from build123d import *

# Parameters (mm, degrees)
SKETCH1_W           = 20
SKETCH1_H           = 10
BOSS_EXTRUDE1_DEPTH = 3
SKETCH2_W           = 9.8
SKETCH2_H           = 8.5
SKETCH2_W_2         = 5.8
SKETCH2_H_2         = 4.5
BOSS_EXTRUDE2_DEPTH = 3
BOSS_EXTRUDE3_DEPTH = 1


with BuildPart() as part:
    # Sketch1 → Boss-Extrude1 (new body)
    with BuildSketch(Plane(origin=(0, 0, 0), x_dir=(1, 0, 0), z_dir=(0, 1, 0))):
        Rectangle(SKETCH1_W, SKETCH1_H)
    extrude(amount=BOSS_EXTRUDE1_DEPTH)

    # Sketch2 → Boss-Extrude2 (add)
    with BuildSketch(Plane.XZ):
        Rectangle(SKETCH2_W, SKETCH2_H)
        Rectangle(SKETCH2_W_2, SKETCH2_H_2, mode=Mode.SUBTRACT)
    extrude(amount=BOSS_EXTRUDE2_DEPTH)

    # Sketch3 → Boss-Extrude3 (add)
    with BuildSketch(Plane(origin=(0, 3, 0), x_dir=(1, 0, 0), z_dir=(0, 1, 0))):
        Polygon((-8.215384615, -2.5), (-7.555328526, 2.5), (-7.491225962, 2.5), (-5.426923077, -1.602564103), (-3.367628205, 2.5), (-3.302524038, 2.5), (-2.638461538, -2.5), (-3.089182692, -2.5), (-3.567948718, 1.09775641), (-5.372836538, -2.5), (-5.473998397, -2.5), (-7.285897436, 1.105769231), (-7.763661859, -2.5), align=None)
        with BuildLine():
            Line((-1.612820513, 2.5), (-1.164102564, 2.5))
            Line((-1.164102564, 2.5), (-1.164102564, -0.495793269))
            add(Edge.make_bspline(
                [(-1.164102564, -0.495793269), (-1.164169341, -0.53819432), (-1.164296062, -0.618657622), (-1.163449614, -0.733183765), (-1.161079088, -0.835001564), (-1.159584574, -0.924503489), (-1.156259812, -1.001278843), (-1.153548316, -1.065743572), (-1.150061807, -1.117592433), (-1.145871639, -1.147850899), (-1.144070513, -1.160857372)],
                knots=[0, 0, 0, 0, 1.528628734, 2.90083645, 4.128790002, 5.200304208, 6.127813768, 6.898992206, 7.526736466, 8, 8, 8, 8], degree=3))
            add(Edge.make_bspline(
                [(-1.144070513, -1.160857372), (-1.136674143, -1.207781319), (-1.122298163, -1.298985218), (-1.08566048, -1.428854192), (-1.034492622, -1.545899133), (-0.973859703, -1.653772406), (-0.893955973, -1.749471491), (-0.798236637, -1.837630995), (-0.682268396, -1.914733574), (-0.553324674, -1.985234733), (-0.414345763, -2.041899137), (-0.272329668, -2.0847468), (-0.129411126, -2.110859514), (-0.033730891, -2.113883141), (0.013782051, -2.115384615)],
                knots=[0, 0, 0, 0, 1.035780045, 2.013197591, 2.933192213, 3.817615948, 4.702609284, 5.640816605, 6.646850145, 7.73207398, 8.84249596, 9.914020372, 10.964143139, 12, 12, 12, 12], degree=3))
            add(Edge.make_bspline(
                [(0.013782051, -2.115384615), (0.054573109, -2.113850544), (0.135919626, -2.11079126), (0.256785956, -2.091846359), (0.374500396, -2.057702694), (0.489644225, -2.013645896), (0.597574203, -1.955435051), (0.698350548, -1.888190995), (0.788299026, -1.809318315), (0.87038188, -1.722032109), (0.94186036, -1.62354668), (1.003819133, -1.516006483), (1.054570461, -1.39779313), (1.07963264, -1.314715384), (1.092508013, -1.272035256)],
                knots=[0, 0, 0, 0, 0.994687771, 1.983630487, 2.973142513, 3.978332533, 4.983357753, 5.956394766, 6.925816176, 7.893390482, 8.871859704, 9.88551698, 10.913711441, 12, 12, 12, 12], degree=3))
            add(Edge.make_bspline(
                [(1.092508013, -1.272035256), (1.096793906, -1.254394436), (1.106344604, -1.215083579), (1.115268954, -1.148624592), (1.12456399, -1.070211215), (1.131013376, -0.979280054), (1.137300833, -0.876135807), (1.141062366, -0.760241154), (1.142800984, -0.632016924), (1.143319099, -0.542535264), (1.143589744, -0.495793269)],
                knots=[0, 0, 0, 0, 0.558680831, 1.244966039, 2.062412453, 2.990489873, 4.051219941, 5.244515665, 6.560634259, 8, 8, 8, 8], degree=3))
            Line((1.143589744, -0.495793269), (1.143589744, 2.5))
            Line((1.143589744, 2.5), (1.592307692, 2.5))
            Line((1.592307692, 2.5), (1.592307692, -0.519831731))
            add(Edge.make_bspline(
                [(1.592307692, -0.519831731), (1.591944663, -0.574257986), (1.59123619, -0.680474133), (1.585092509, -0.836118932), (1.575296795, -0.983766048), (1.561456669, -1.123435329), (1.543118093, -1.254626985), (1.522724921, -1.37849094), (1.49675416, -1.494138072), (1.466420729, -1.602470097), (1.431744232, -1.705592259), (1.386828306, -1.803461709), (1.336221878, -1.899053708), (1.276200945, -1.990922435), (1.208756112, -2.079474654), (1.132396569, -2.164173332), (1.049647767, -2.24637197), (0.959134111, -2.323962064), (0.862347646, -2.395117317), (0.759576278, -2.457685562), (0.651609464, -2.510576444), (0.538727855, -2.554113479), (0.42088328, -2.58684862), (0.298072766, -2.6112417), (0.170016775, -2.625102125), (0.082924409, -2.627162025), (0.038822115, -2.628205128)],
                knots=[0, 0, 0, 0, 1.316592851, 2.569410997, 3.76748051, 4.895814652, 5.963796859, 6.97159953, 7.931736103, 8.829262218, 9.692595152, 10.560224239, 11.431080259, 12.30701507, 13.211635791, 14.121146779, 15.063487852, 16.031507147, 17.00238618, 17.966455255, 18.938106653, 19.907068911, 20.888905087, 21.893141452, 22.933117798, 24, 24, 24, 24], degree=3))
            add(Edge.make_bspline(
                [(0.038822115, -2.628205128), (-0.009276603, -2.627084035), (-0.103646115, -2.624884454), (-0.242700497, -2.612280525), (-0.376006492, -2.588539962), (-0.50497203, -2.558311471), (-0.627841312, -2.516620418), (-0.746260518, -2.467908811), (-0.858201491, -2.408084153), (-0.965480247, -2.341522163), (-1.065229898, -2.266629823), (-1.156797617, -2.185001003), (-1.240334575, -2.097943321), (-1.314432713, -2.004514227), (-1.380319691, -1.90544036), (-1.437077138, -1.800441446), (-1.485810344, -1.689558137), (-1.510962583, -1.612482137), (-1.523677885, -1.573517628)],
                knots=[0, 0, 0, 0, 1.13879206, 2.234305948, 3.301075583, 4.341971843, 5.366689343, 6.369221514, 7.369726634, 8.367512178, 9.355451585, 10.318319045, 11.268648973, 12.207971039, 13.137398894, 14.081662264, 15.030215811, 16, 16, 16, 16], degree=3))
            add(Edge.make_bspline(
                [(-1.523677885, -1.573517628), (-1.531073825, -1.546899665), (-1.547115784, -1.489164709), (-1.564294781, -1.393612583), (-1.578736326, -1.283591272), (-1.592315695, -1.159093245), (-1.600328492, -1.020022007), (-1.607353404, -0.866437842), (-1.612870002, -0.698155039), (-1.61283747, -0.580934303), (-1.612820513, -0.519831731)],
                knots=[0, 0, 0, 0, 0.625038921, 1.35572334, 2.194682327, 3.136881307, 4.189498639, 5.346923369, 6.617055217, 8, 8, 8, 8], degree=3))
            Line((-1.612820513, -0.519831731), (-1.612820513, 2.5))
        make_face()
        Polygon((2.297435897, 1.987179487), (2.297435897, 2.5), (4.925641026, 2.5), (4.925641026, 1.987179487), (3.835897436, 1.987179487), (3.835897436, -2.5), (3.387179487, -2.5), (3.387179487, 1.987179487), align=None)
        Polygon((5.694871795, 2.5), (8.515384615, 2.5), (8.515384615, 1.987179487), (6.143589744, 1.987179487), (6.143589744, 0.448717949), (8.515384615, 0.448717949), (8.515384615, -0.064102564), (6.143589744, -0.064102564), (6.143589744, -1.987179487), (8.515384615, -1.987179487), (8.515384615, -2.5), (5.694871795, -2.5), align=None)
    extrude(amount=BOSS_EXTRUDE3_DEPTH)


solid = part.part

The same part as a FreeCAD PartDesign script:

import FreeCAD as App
import Part
import Sketcher
Q = App.Units.Quantity


def add_polygon(sketch, points):
    """Adds a closed chain of lines whose ends are joined by coincident constraints."""
    first, n = sketch.GeometryCount, len(points)
    for a, b in zip(points, points[1:] + points[:1]):
        sketch.addGeometry(Part.LineSegment(App.Vector(*a, 0), App.Vector(*b, 0)), False)
    for i in range(n):
        sketch.addConstraint(Sketcher.Constraint("Coincident", first + i, 2, first + (i + 1) % n, 1))

doc = App.newDocument("Part")
body = doc.addObject("PartDesign::Body", "Body")

# Sketch on XZ plane
sketch1 = doc.addObject("Sketcher::SketchObject", "Sketch")
body.addObject(sketch1)
sketch1.AttachmentSupport = (doc.XZ_Plane, [""])
sketch1.MapMode = "FlatFace"
add_polygon(sketch1, [(-10, -5), (-10, 5), (10, 5), (10, -5)])  # lines 0-3
sketch1.addConstraint(Sketcher.Constraint("Vertical", 0))
sketch1.addConstraint(Sketcher.Constraint("Horizontal", 1))
sketch1.addConstraint(Sketcher.Constraint("Vertical", 2))
sketch1.addConstraint(Sketcher.Constraint("Horizontal", 3))
sketch1.addConstraint(Sketcher.Constraint("Symmetric", 0, 2, 2, 2, -1, 1))
sketch1.addConstraint(Sketcher.Constraint("DistanceX", 1, 1, 1, 2, 20.0))
sketch1.addConstraint(Sketcher.Constraint("DistanceY", 0, 1, 0, 2, 10.0))
pad1 = doc.addObject("PartDesign::Pad", "Pad")
body.addObject(pad1)
pad1.Profile = sketch1
pad1.Length = 3
pad1.Reversed = True

# Sketch on XZ plane
sketch2 = doc.addObject("Sketcher::SketchObject", "Sketch001")
body.addObject(sketch2)
sketch2.AttachmentSupport = (doc.XZ_Plane, [""])
sketch2.MapMode = "FlatFace"
add_polygon(sketch2, [(-4.9, 4.2), (-4.9, -4.2), (4.9, -4.2), (4.9, 4.2)])  # lines 0-3
add_polygon(sketch2, [(2.9, -2.2), (-2.9, -2.2), (-2.9, 2.2), (2.9, 2.2)])  # lines 4-7
sketch2.addConstraint(Sketcher.Constraint("Vertical", 0))
sketch2.addConstraint(Sketcher.Constraint("Horizontal", 1))
sketch2.addConstraint(Sketcher.Constraint("Vertical", 2))
sketch2.addConstraint(Sketcher.Constraint("Horizontal", 3))
sketch2.addConstraint(Sketcher.Constraint("Horizontal", 4))
sketch2.addConstraint(Sketcher.Constraint("Vertical", 5))
sketch2.addConstraint(Sketcher.Constraint("Horizontal", 6))
sketch2.addConstraint(Sketcher.Constraint("Vertical", 7))
sketch2.addConstraint(Sketcher.Constraint("Symmetric", 0, 2, 2, 2, -1, 1))
sketch2.addConstraint(Sketcher.Constraint("Symmetric", 4, 2, 6, 2, -1, 1))
sketch2.addConstraint(Sketcher.Constraint("DistanceX", 1, 1, 1, 2, 9.8))
sketch2.addConstraint(Sketcher.Constraint("DistanceX", 4, 2, 4, 1, 5.8))
sketch2.addConstraint(Sketcher.Constraint("DistanceY", 0, 2, 0, 1, 8.5))
sketch2.addConstraint(Sketcher.Constraint("DistanceY", 5, 1, 5, 2, 4.5))
pad2 = doc.addObject("PartDesign::Pad", "Pad001")
body.addObject(pad2)
pad2.Profile = sketch2
pad2.Length = 3

# Sketch on XZ plane
sketch3 = doc.addObject("Sketcher::SketchObject", "Sketch002")
body.addObject(sketch3)
sketch3.AttachmentSupport = (doc.XZ_Plane, [""])
sketch3.MapMode = "FlatFace"
sketch3.AttachmentOffset = App.Placement(App.Vector(0, 0, -3), App.Rotation())
add_polygon(sketch3, [(-7.555329, -2.5), (-8.215385, 2.5), (-7.763662, 2.5), (-7.285897, -1.105769), (-5.473998, 2.5), (-5.372837, 2.5), (-3.567949, -1.097756), (-3.089183, 2.5), (-2.638462, 2.5), (-3.302524, -2.5), (-3.367628, -2.5), (-5.426923, 1.602564), (-7.491226, -2.5)])  # lines 0-12
sketch3.addGeometry(Part.LineSegment(App.Vector(-1.164103, -2.5, 0), App.Vector(-1.612821, -2.5, 0)), False)  # 13
sketch3.addGeometry(Part.LineSegment(App.Vector(-1.612821, -2.5, 0), App.Vector(-1.612821, 0.519832, 0)), False)  # 14
sketch3.addGeometry(Part.BSplineCurve([App.Vector(-1.523678, 1.573518, 0), App.Vector(-1.531074, 1.5469, 0), App.Vector(-1.547116, 1.489165, 0), App.Vector(-1.564295, 1.393613, 0), App.Vector(-1.578736, 1.283591, 0), App.Vector(-1.592316, 1.159093, 0), App.Vector(-1.600328, 1.020022, 0), App.Vector(-1.607353, 0.866438, 0), App.Vector(-1.61287, 0.698155, 0), App.Vector(-1.612837, 0.580934, 0), App.Vector(-1.612821, 0.519832, 0)], [4, 1, 1, 1, 1, 1, 1, 1, 4], [0, 0.625038921, 1.35572334, 2.194682327, 3.136881307, 4.189498639, 5.346923369, 6.617055217, 8], False, 3, [1, 1, 1, 1, 1, 1, 1, 1, 1, 1, 1], False), False)  # 15
sketch3.addGeometry(Part.BSplineCurve([App.Vector(0.038822, 2.628205, 0), App.Vector(-0.009277, 2.627084, 0), App.Vector(-0.103646, 2.624884, 0), App.Vector(-0.2427, 2.612281, 0), App.Vector(-0.376006, 2.58854, 0), App.Vector(-0.504972, 2.558311, 0), App.Vector(-0.627841, 2.51662, 0), App.Vector(-0.746261, 2.467909, 0), App.Vector(-0.858201, 2.408084, 0), App.Vector(-0.96548, 2.341522, 0), App.Vector(-1.06523, 2.26663, 0), App.Vector(-1.156798, 2.185001, 0), App.Vector(-1.240335, 2.097943, 0), App.Vector(-1.314433, 2.004514, 0), App.Vector(-1.38032, 1.90544, 0), App.Vector(-1.437077, 1.800441, 0), App.Vector(-1.48581, 1.689558, 0), App.Vector(-1.510963, 1.612482, 0), App.Vector(-1.523678, 1.573518, 0)], [4, 1, 1, 1, 1, 1, 1, 1, 1, 1, 1, 1, 1, 1, 1, 1, 4], [0, 1.13879206, 2.234305948, 3.301075583, 4.341971843, 5.366689343, 6.369221514, 7.369726634, 8.367512178, 9.355451585, 10.318319045, 11.268648973, 12.207971039, 13.137398894, 14.081662264, 15.030215811, 16], False, 3, [1, 1, 1, 1, 1, 1, 1, 1, 1, 1, 1, 1, 1, 1, 1, 1, 1, 1, 1], False), False)  # 16
sketch3.addGeometry(Part.BSplineCurve([App.Vector(1.592308, 0.519832, 0), App.Vector(1.591945, 0.574258, 0), App.Vector(1.591236, 0.680474, 0), App.Vector(1.585093, 0.836119, 0), App.Vector(1.575297, 0.983766, 0), App.Vector(1.561457, 1.123435, 0), App.Vector(1.543118, 1.254627, 0), App.Vector(1.522725, 1.378491, 0), App.Vector(1.496754, 1.494138, 0), App.Vector(1.466421, 1.60247, 0), App.Vector(1.431744, 1.705592, 0), App.Vector(1.386828, 1.803462, 0), App.Vector(1.336222, 1.899054, 0), App.Vector(1.276201, 1.990922, 0), App.Vector(1.208756, 2.079475, 0), App.Vector(1.132397, 2.164173, 0), App.Vector(1.049648, 2.246372, 0), App.Vector(0.959134, 2.323962, 0), App.Vector(0.862348, 2.395117, 0), App.Vector(0.759576, 2.457686, 0), App.Vector(0.651609, 2.510576, 0), App.Vector(0.538728, 2.554113, 0), App.Vector(0.420883, 2.586849, 0), App.Vector(0.298073, 2.611242, 0), App.Vector(0.170017, 2.625102, 0), App.Vector(0.082924, 2.627162, 0), App.Vector(0.038822, 2.628205, 0)], [4, 1, 1, 1, 1, 1, 1, 1, 1, 1, 1, 1, 1, 1, 1, 1, 1, 1, 1, 1, 1, 1, 1, 1, 4], [0, 1.316592851, 2.569410997, 3.76748051, 4.895814652, 5.963796859, 6.97159953, 7.931736103, 8.829262218, 9.692595152, 10.560224239, 11.431080259, 12.30701507, 13.211635791, 14.121146779, 15.063487852, 16.031507147, 17.00238618, 17.966455255, 18.938106653, 19.907068911, 20.888905087, 21.893141452, 22.933117798, 24], False, 3, [1, 1, 1, 1, 1, 1, 1, 1, 1, 1, 1, 1, 1, 1, 1, 1, 1, 1, 1, 1, 1, 1, 1, 1, 1, 1, 1], False), False)  # 17
sketch3.addGeometry(Part.LineSegment(App.Vector(1.592308, 0.519832, 0), App.Vector(1.592308, -2.5, 0)), False)  # 18
sketch3.addGeometry(Part.LineSegment(App.Vector(1.592308, -2.5, 0), App.Vector(1.14359, -2.5, 0)), False)  # 19
sketch3.addGeometry(Part.LineSegment(App.Vector(1.14359, -2.5, 0), App.Vector(1.14359, 0.495793, 0)), False)  # 20
sketch3.addGeometry(Part.BSplineCurve([App.Vector(1.092508, 1.272035, 0), App.Vector(1.096794, 1.254394, 0), App.Vector(1.106345, 1.215084, 0), App.Vector(1.115269, 1.148625, 0), App.Vector(1.124564, 1.070211, 0), App.Vector(1.131013, 0.97928, 0), App.Vector(1.137301, 0.876136, 0), App.Vector(1.141062, 0.760241, 0), App.Vector(1.142801, 0.632017, 0), App.Vector(1.143319, 0.542535, 0), App.Vector(1.14359, 0.495793, 0)], [4, 1, 1, 1, 1, 1, 1, 1, 4], [0, 0.558680831, 1.244966039, 2.062412453, 2.990489873, 4.051219941, 5.244515665, 6.560634259, 8], False, 3, [1, 1, 1, 1, 1, 1, 1, 1, 1, 1, 1], False), False)  # 21
sketch3.addGeometry(Part.BSplineCurve([App.Vector(0.013782, 2.115385, 0), App.Vector(0.054573, 2.113851, 0), App.Vector(0.13592, 2.110791, 0), App.Vector(0.256786, 2.091846, 0), App.Vector(0.3745, 2.057703, 0), App.Vector(0.489644, 2.013646, 0), App.Vector(0.597574, 1.955435, 0), App.Vector(0.698351, 1.888191, 0), App.Vector(0.788299, 1.809318, 0), App.Vector(0.870382, 1.722032, 0), App.Vector(0.94186, 1.623547, 0), App.Vector(1.003819, 1.516006, 0), App.Vector(1.05457, 1.397793, 0), App.Vector(1.079633, 1.314715, 0), App.Vector(1.092508, 1.272035, 0)], [4, 1, 1, 1, 1, 1, 1, 1, 1, 1, 1, 1, 4], [0, 0.994687771, 1.983630487, 2.973142513, 3.978332533, 4.983357753, 5.956394766, 6.925816176, 7.893390482, 8.871859704, 9.88551698, 10.913711441, 12], False, 3, [1, 1, 1, 1, 1, 1, 1, 1, 1, 1, 1, 1, 1, 1, 1], False), False)  # 22
sketch3.addGeometry(Part.BSplineCurve([App.Vector(-1.144071, 1.160857, 0), App.Vector(-1.136674, 1.207781, 0), App.Vector(-1.122298, 1.298985, 0), App.Vector(-1.08566, 1.428854, 0), App.Vector(-1.034493, 1.545899, 0), App.Vector(-0.97386, 1.653772, 0), App.Vector(-0.893956, 1.749471, 0), App.Vector(-0.798237, 1.837631, 0), App.Vector(-0.682268, 1.914734, 0), App.Vector(-0.553325, 1.985235, 0), App.Vector(-0.414346, 2.041899, 0), App.Vector(-0.27233, 2.084747, 0), App.Vector(-0.129411, 2.11086, 0), App.Vector(-0.033731, 2.113883, 0), App.Vector(0.013782, 2.115385, 0)], [4, 1, 1, 1, 1, 1, 1, 1, 1, 1, 1, 1, 4], [0, 1.035780045, 2.013197591, 2.933192213, 3.817615948, 4.702609284, 5.640816605, 6.646850145, 7.73207398, 8.84249596, 9.914020372, 10.964143139, 12], False, 3, [1, 1, 1, 1, 1, 1, 1, 1, 1, 1, 1, 1, 1, 1, 1], False), False)  # 23
sketch3.addGeometry(Part.BSplineCurve([App.Vector(-1.164103, 0.495793, 0), App.Vector(-1.164169, 0.538194, 0), App.Vector(-1.164296, 0.618658, 0), App.Vector(-1.16345, 0.733184, 0), App.Vector(-1.161079, 0.835002, 0), App.Vector(-1.159585, 0.924503, 0), App.Vector(-1.15626, 1.001279, 0), App.Vector(-1.153548, 1.065744, 0), App.Vector(-1.150062, 1.117592, 0), App.Vector(-1.145872, 1.147851, 0), App.Vector(-1.144071, 1.160857, 0)], [4, 1, 1, 1, 1, 1, 1, 1, 4], [0, 1.528628734, 2.90083645, 4.128790002, 5.200304208, 6.127813768, 6.898992206, 7.526736466, 8], False, 3, [1, 1, 1, 1, 1, 1, 1, 1, 1, 1, 1], False), False)  # 24
sketch3.addGeometry(Part.LineSegment(App.Vector(-1.164103, 0.495793, 0), App.Vector(-1.164103, -2.5, 0)), False)  # 25
add_polygon(sketch3, [(2.297436, -2.5), (2.297436, -1.987179), (3.387179, -1.987179), (3.387179, 2.5), (3.835897, 2.5), (3.835897, -1.987179), (4.925641, -1.987179), (4.925641, -2.5)])  # lines 26-33
add_polygon(sketch3, [(8.515385, -2.5), (5.694872, -2.5), (5.694872, 2.5), (8.515385, 2.5), (8.515385, 1.987179), (6.14359, 1.987179), (6.14359, 0.064103), (8.515385, 0.064103), (8.515385, -0.448718), (6.14359, -0.448718), (6.14359, -1.987179), (8.515385, -1.987179)])  # lines 34-45
sketch3.addConstraint(Sketcher.Constraint("Block", 15))
sketch3.addConstraint(Sketcher.Constraint("Block", 16))
sketch3.addConstraint(Sketcher.Constraint("Block", 17))
sketch3.addConstraint(Sketcher.Constraint("Block", 21))
sketch3.addConstraint(Sketcher.Constraint("Block", 22))
sketch3.addConstraint(Sketcher.Constraint("Block", 23))
sketch3.addConstraint(Sketcher.Constraint("Block", 24))
sketch3.addConstraint(Sketcher.Constraint("Coincident", 13, 2, 14, 1))
sketch3.addConstraint(Sketcher.Constraint("Coincident", 14, 2, 15, 2))
sketch3.addConstraint(Sketcher.Constraint("Coincident", 17, 1, 18, 1))
sketch3.addConstraint(Sketcher.Constraint("Coincident", 18, 2, 19, 1))
sketch3.addConstraint(Sketcher.Constraint("Coincident", 19, 2, 20, 1))
sketch3.addConstraint(Sketcher.Constraint("Coincident", 20, 2, 21, 2))
sketch3.addConstraint(Sketcher.Constraint("Coincident", 24, 1, 25, 1))
sketch3.addConstraint(Sketcher.Constraint("Coincident", 25, 2, 13, 1))
sketch3.addConstraint(Sketcher.Constraint("Horizontal", 1))
sketch3.addConstraint(Sketcher.Constraint("Horizontal", 4))
sketch3.addConstraint(Sketcher.Constraint("Horizontal", 7))
sketch3.addConstraint(Sketcher.Constraint("Horizontal", 9))
sketch3.addConstraint(Sketcher.Constraint("Horizontal", 12))
sketch3.addConstraint(Sketcher.Constraint("Horizontal", 13))
sketch3.addConstraint(Sketcher.Constraint("Vertical", 14))
sketch3.addConstraint(Sketcher.Constraint("Vertical", 18))
sketch3.addConstraint(Sketcher.Constraint("Horizontal", 19))
sketch3.addConstraint(Sketcher.Constraint("Vertical", 20))
sketch3.addConstraint(Sketcher.Constraint("Vertical", 25))
sketch3.addConstraint(Sketcher.Constraint("Vertical", 26))
sketch3.addConstraint(Sketcher.Constraint("Horizontal", 27))
sketch3.addConstraint(Sketcher.Constraint("Vertical", 28))
sketch3.addConstraint(Sketcher.Constraint("Horizontal", 29))
sketch3.addConstraint(Sketcher.Constraint("Vertical", 30))
sketch3.addConstraint(Sketcher.Constraint("Horizontal", 31))
sketch3.addConstraint(Sketcher.Constraint("Vertical", 32))
sketch3.addConstraint(Sketcher.Constraint("Horizontal", 33))
sketch3.addConstraint(Sketcher.Constraint("Horizontal", 34))
sketch3.addConstraint(Sketcher.Constraint("Vertical", 35))
sketch3.addConstraint(Sketcher.Constraint("Horizontal", 36))
sketch3.addConstraint(Sketcher.Constraint("Vertical", 37))
sketch3.addConstraint(Sketcher.Constraint("Horizontal", 38))
sketch3.addConstraint(Sketcher.Constraint("Vertical", 39))
sketch3.addConstraint(Sketcher.Constraint("Horizontal", 40))
sketch3.addConstraint(Sketcher.Constraint("Vertical", 41))
sketch3.addConstraint(Sketcher.Constraint("Horizontal", 42))
sketch3.addConstraint(Sketcher.Constraint("Vertical", 43))
sketch3.addConstraint(Sketcher.Constraint("Horizontal", 44))
sketch3.addConstraint(Sketcher.Constraint("Vertical", 45))
sketch3.addConstraint(Sketcher.Constraint("Symmetric", 38, 2, 43, 2, -1))
sketch3.addConstraint(Sketcher.Constraint("Symmetric", 36, 2, 45, 2, -1))
sketch3.addConstraint(Sketcher.Constraint("Horizontal", 1, 2, 3, 2))
sketch3.addConstraint(Sketcher.Constraint("Horizontal", 4, 2, 6, 2))
sketch3.addConstraint(Sketcher.Constraint("Horizontal", 9, 2, 11, 2))
sketch3.addConstraint(Sketcher.Constraint("Horizontal", 12, 2, 13, 2))
sketch3.addConstraint(Sketcher.Constraint("Horizontal", 13, 2, 18, 2))
sketch3.addConstraint(Sketcher.Constraint("Horizontal", 7, 2, 28, 2))
sketch3.addConstraint(Sketcher.Constraint("Horizontal", 27, 2, 30, 2))
sketch3.addConstraint(Sketcher.Constraint("Horizontal", 25, 2, 32, 2))
sketch3.addConstraint(Sketcher.Constraint("Horizontal", 33, 2, 34, 2))
sketch3.addConstraint(Sketcher.Constraint("Horizontal", 29, 2, 35, 2))
sketch3.addConstraint(Sketcher.Constraint("Horizontal", 31, 2, 43, 2))
sketch3.addConstraint(Sketcher.Constraint("Vertical", 37, 2, 40, 2))
sketch3.addConstraint(Sketcher.Constraint("Equal", 19, 29))
sketch3.addConstraint(Sketcher.Constraint("Equal", 27, 31))
sketch3.addConstraint(Sketcher.Constraint("Equal", 37, 41))
sketch3.addConstraint(Sketcher.Constraint("DistanceY", 35, 1, 35, 2, 5.0))
sketch3.addConstraint(Sketcher.Constraint("DistanceX", 14, 2, 28, 2, 5.0))
sketch3.addConstraint(Sketcher.Constraint("Angle", 6, Q("82.419985 deg")))
sketch3.addConstraint(Sketcher.Constraint("DistanceX", 3, 2, -1, 1, 5.473998))
sketch3.addConstraint(Sketcher.Constraint("DistanceX", 4, 1, 4, 2, 0.101162))
sketch3.addConstraint(Sketcher.Constraint("DistanceX", 7, 1, 7, 2, 0.450721))
sketch3.addConstraint(Sketcher.Constraint("DistanceY", 26, 1, 26, 2, 0.512821))
sketch3.addConstraint(Sketcher.Constraint("DistanceY", 43, 2, 43, 1, 1.538462))
sketch3.addConstraint(Sketcher.Constraint("DistanceX", 2, 2, 3, 2, 1.811899))
sketch3.addConstraint(Sketcher.Constraint("DistanceX", 0, 2, 6, 2, 5.126202))
sketch3.addConstraint(Sketcher.Constraint("DistanceX", 1, 2, 7, 2, 5.1252))
sketch3.addConstraint(Sketcher.Constraint("DistanceX", 11, 2, 8, 2, 4.188702))
sketch3.addConstraint(Sketcher.Constraint("DistanceX", 12, 2, 9, 2, 4.1877))
sketch3.addConstraint(Sketcher.Constraint("Distance", 0, 5.043379))
sketch3.addConstraint(Sketcher.Constraint("Distance", 3, 4.035412))
sketch3.addConstraint(Sketcher.Constraint("DistanceX", 9, 2, 9, 1, 0.065104))
sketch3.addConstraint(Sketcher.Constraint("DistanceX", 27, 1, 27, 2, 1.089744))
sketch3.addConstraint(Sketcher.Constraint("DistanceX", 34, 2, 34, 1, 2.820513))
sketch3.addConstraint(Sketcher.Constraint("DistanceX", 38, 2, 38, 1, 2.371795))
sketch3.addConstraint(Sketcher.Constraint("DistanceX", 1, 2, -1, 1, 7.763662))
sketch3.addConstraint(Sketcher.Constraint("DistanceX", 5, 2, -1, 1, 3.567949))
sketch3.addConstraint(Sketcher.Constraint("DistanceX", -1, 1, 34, 2, 5.694872))
sketch3.addConstraint(Sketcher.Constraint("DistanceX", 1, 2, 10, 2, 2.336739))
sketch3.addConstraint(Sketcher.Constraint("Distance", 10, 4.590395))
pad3 = doc.addObject("PartDesign::Pad", "Pad002")
body.addObject(pad3)
pad3.Profile = sketch3
pad3.Length = 1
pad3.Reversed = True

doc.recompute()
